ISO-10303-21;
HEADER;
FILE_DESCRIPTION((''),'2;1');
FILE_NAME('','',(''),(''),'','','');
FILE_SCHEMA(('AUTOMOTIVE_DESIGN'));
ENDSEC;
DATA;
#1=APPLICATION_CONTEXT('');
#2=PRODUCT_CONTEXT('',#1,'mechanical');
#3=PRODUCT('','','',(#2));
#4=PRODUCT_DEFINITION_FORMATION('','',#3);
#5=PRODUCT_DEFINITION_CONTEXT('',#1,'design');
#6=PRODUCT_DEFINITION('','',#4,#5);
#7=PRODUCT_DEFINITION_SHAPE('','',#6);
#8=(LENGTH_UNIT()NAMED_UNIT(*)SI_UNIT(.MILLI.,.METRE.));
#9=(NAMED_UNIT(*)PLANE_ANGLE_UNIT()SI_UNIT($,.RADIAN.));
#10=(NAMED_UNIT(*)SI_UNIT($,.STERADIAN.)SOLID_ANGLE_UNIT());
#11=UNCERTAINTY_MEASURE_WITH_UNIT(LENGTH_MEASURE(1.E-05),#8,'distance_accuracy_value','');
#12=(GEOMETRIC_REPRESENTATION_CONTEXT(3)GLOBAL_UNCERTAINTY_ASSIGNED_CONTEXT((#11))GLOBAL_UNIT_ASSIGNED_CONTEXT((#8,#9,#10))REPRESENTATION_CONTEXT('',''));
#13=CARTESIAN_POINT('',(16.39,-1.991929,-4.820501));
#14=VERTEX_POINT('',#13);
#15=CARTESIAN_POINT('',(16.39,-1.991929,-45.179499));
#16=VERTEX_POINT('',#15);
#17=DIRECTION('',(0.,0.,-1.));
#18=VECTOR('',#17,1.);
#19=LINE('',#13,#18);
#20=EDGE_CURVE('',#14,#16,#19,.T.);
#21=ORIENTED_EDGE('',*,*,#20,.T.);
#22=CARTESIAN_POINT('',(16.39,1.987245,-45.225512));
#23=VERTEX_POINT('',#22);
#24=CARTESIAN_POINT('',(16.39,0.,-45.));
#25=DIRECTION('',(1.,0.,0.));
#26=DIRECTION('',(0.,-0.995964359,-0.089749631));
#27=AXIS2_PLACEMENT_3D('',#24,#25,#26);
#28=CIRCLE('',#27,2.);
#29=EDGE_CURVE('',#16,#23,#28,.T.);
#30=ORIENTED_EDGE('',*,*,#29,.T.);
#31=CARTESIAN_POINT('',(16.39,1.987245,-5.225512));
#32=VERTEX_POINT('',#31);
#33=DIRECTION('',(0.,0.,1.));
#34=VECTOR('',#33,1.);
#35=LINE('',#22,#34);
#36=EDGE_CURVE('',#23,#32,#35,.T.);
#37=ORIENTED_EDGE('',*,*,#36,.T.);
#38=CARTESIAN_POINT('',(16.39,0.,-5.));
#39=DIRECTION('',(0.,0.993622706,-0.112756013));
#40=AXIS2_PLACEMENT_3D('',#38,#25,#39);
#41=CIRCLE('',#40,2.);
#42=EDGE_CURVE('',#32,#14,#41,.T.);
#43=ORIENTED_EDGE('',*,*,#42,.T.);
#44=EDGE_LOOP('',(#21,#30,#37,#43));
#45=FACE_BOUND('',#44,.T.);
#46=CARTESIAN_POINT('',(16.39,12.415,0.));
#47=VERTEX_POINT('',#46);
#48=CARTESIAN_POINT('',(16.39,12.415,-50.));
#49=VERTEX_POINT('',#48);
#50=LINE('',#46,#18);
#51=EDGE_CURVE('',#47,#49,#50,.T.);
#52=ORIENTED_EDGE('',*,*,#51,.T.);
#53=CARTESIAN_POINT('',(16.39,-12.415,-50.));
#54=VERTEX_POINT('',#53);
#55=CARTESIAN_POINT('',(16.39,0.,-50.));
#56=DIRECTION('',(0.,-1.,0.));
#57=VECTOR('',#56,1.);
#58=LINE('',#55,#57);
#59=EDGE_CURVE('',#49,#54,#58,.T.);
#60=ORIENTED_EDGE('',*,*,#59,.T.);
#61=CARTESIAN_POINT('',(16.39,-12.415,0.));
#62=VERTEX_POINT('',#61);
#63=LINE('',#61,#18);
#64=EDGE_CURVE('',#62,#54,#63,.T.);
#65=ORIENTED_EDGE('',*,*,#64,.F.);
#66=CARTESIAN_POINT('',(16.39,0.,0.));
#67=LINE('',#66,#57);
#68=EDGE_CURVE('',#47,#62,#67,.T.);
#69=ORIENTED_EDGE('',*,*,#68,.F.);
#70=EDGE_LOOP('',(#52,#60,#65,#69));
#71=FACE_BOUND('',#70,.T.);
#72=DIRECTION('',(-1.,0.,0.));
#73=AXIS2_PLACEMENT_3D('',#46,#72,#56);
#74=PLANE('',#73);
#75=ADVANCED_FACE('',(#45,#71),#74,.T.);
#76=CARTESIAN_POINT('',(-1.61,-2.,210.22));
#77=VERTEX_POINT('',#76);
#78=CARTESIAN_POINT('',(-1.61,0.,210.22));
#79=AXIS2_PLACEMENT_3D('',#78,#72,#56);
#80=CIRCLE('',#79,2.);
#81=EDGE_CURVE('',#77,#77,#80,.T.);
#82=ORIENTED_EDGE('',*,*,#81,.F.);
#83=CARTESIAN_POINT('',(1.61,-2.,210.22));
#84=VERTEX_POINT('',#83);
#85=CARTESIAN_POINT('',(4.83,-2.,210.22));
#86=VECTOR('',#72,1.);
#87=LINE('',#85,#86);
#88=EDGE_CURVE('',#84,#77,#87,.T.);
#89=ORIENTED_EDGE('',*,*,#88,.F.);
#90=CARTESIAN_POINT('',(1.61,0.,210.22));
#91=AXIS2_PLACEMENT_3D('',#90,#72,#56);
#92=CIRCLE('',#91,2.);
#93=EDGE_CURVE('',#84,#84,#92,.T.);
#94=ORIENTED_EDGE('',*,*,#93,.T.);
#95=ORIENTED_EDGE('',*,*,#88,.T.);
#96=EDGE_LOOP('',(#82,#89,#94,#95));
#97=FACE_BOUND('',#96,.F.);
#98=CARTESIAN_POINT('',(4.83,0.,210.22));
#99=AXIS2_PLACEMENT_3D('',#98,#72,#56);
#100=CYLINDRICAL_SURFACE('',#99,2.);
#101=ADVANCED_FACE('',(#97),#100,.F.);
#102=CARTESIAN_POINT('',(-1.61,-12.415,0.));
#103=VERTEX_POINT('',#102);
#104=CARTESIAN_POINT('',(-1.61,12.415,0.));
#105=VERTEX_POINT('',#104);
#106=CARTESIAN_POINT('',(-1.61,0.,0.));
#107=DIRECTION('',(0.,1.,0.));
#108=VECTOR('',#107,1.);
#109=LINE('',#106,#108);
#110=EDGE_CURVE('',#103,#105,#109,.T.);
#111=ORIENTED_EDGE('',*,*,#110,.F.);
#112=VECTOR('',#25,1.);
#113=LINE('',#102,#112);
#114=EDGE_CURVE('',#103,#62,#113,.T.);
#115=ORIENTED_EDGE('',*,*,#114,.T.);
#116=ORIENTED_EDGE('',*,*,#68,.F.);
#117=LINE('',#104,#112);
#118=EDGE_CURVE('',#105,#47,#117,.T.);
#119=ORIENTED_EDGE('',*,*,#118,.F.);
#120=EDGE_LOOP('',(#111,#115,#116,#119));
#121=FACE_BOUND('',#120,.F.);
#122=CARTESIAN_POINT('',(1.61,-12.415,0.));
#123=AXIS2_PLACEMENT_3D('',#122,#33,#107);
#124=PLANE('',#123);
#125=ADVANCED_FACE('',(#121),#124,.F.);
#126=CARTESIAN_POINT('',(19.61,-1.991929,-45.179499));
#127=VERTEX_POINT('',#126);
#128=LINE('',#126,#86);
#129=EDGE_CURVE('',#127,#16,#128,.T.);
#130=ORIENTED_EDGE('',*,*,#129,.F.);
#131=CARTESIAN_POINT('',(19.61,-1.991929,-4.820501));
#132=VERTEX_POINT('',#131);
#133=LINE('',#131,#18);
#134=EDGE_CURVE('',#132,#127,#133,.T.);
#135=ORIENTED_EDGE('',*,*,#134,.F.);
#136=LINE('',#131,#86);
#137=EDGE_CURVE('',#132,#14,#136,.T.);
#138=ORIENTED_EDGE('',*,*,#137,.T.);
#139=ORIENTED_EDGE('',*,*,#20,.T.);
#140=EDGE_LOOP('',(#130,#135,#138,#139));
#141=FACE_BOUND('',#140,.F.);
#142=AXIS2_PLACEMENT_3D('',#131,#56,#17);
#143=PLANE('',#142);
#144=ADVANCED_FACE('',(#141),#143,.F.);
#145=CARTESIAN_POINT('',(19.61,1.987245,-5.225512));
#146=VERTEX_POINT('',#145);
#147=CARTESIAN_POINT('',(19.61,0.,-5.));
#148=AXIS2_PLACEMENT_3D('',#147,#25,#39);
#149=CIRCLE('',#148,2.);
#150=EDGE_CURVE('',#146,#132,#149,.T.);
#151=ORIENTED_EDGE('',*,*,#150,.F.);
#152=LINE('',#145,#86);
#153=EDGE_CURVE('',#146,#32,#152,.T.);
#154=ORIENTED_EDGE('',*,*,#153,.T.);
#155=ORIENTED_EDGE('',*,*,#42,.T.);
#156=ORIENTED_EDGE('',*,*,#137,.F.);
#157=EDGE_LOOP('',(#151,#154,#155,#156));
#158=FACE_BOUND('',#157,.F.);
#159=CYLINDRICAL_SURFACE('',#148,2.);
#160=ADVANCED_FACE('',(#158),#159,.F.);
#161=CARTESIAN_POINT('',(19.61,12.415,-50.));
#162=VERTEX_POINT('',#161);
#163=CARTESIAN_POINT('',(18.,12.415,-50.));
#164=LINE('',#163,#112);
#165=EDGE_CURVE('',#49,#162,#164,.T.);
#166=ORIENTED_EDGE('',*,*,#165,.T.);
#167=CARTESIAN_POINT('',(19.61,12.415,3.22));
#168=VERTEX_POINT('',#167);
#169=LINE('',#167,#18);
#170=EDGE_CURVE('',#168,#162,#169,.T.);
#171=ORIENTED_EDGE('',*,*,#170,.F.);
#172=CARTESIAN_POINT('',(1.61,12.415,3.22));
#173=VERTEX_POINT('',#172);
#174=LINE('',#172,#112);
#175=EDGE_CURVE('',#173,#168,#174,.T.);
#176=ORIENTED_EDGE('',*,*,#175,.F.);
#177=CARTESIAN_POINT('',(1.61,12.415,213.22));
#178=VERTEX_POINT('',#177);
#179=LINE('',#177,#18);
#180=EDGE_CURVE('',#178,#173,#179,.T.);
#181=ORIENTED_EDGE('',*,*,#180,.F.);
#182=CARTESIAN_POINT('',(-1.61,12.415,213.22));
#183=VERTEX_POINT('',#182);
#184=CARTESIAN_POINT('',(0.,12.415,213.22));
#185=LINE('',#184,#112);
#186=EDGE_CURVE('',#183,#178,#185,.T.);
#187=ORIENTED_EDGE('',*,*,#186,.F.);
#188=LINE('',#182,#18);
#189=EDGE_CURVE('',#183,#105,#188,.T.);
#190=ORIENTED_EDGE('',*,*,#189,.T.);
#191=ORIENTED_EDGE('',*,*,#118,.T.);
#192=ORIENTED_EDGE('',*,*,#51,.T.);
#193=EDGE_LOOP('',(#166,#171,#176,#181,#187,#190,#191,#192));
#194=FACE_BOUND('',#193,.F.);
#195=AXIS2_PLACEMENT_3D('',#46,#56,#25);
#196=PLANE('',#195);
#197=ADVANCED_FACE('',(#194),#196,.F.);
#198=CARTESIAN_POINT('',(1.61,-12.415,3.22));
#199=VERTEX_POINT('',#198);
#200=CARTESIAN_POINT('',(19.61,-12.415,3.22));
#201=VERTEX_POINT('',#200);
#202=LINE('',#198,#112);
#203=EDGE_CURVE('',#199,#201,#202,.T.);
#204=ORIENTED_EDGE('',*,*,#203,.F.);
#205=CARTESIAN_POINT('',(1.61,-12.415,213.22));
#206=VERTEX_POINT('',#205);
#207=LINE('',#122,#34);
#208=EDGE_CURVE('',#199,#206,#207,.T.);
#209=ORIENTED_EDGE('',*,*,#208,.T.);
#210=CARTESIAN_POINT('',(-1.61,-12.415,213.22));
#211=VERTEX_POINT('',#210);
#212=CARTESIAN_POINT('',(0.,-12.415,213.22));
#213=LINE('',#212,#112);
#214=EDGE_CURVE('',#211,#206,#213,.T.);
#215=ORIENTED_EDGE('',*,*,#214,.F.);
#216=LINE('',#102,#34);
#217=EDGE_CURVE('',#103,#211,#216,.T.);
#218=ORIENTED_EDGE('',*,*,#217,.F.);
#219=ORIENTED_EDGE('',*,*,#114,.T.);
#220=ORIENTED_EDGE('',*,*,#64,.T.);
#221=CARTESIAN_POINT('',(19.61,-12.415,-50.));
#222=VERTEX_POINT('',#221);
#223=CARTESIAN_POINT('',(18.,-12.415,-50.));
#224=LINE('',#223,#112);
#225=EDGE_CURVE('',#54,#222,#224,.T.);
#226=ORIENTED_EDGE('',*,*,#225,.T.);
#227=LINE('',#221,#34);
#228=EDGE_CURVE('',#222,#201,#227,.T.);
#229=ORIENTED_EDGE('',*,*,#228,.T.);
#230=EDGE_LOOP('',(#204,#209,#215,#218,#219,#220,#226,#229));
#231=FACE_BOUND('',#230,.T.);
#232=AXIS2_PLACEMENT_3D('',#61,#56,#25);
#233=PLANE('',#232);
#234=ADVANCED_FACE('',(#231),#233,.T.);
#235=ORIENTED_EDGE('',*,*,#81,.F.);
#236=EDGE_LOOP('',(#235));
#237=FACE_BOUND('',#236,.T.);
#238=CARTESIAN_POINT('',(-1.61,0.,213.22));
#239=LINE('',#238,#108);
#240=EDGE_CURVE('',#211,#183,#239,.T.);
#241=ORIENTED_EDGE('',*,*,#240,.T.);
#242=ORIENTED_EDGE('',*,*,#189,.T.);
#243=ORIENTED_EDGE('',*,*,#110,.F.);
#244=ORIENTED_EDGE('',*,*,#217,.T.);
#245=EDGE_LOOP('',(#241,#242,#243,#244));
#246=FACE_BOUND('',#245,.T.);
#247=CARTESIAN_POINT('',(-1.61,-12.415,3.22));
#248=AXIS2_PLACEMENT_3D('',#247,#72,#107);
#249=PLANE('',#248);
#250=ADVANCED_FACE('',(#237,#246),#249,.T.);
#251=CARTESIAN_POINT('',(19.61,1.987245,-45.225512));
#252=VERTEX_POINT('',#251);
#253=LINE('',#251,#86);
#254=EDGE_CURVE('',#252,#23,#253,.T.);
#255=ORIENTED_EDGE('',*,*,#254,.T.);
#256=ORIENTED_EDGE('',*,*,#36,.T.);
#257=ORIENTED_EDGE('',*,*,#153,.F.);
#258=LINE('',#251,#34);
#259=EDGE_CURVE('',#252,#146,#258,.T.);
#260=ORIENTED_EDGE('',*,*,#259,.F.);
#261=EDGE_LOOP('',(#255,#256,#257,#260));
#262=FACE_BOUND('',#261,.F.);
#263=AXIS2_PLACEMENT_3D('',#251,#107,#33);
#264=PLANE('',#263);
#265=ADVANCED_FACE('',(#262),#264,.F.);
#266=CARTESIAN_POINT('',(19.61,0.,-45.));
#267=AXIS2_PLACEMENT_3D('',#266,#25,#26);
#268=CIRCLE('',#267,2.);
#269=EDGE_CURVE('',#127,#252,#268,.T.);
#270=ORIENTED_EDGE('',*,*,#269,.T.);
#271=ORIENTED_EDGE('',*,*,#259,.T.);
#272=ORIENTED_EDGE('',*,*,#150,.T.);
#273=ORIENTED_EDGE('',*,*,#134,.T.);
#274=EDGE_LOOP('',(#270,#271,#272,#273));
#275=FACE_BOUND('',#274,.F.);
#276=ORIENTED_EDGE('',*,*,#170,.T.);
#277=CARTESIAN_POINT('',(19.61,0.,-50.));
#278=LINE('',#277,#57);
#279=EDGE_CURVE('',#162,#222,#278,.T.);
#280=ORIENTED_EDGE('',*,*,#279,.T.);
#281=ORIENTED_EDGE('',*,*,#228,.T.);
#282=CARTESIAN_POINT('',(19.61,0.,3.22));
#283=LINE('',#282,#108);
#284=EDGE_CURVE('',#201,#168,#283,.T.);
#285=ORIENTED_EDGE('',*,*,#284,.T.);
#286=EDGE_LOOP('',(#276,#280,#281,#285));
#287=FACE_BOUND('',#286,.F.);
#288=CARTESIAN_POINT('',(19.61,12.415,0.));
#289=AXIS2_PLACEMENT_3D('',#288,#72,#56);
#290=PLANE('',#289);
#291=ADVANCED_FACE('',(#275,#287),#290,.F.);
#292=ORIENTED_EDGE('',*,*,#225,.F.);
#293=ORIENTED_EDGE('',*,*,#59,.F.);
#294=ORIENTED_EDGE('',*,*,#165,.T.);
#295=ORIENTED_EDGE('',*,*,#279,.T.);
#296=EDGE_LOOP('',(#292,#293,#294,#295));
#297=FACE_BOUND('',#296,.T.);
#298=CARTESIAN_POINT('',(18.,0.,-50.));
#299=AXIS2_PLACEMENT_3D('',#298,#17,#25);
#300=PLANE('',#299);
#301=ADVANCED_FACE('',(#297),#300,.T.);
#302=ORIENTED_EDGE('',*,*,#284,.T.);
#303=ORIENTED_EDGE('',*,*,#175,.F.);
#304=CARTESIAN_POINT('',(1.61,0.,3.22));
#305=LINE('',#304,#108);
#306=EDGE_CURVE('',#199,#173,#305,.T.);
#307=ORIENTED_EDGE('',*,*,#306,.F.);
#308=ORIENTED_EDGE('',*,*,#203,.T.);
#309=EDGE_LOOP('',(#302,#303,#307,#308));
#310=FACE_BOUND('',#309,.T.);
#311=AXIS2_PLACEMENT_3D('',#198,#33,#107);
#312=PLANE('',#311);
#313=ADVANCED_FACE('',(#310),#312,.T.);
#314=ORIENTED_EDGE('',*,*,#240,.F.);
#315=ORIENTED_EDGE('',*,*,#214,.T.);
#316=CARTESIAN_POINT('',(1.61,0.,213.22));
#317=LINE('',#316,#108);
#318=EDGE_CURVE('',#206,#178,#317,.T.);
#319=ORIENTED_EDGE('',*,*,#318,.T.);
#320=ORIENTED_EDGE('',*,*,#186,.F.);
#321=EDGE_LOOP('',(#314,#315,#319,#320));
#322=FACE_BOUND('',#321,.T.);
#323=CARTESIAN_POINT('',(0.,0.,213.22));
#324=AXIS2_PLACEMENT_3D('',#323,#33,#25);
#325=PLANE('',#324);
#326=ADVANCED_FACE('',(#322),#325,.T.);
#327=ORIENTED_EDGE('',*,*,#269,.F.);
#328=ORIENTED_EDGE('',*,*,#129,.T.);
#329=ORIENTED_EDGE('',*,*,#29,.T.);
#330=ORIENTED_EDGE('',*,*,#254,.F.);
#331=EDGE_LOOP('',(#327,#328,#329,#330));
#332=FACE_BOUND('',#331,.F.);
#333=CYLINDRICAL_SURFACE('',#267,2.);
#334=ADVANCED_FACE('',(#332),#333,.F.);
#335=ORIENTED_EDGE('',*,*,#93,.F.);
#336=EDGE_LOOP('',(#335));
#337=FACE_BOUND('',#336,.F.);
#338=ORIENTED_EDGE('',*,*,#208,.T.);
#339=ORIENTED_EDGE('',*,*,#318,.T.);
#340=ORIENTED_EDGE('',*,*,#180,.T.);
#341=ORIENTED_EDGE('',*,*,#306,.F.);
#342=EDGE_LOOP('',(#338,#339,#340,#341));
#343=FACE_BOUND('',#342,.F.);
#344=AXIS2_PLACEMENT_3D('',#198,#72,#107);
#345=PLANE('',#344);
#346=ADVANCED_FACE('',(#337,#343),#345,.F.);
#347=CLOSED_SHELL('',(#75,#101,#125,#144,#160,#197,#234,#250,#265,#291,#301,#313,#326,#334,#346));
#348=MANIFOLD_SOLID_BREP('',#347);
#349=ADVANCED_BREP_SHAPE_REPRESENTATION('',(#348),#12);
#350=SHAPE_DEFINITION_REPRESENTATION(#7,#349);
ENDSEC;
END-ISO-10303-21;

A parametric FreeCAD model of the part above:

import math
import FreeCAD as App
import Part
import Sketcher

V = App.Vector

doc = App.newDocument("Part")
body = doc.addObject("PartDesign::Body", "Body")

# Sketch on XY plane
sketch1 = doc.addObject("Sketcher::SketchObject", "Sketch")
body.addObject(sketch1)
sketch1.AttachmentSupport = (doc.XY_Plane, [""])
sketch1.MapMode = "FlatFace"
sketch1.addGeometry(Part.LineSegment(V(-1.61, 12.415, 0), V(-1.61, -12.415, 0)), False)
sketch1.addGeometry(Part.LineSegment(V(-1.61, -12.415, 0), V(1.61, -12.415, 0)), False)
sketch1.addGeometry(Part.LineSegment(V(1.61, -12.415, 0), V(1.61, 12.415, 0)), False)
sketch1.addGeometry(Part.LineSegment(V(1.61, 12.415, 0), V(-1.61, 12.415, 0)), False)
sketch1.addConstraint(Sketcher.Constraint("Coincident", 0, 2, 1, 1))
sketch1.addConstraint(Sketcher.Constraint("Coincident", 1, 2, 2, 1))
sketch1.addConstraint(Sketcher.Constraint("Coincident", 2, 2, 3, 1))
sketch1.addConstraint(Sketcher.Constraint("Coincident", 3, 2, 0, 1))
sketch1.addConstraint(Sketcher.Constraint("Vertical", 0))
sketch1.addConstraint(Sketcher.Constraint("Horizontal", 1))
sketch1.addConstraint(Sketcher.Constraint("Vertical", 2))
sketch1.addConstraint(Sketcher.Constraint("Horizontal", 3))
sketch1.addConstraint(Sketcher.Constraint("Symmetric", 0, 2, 2, 2, -1, 1))
sketch1.addConstraint(Sketcher.Constraint("DistanceX", 1, 1, 1, 2, 3.22))
sketch1.addConstraint(Sketcher.Constraint("DistanceY", 0, 2, 0, 1, 24.83))
pad1 = doc.addObject("PartDesign::Pad", "Pad")
body.addObject(pad1)
pad1.Profile = sketch1
pad1.Length = 3.22

# Sketch on XY plane
sketch2 = doc.addObject("Sketcher::SketchObject", "Sketch001")
body.addObject(sketch2)
sketch2.AttachmentSupport = (doc.XY_Plane, [""])
sketch2.MapMode = "FlatFace"
sketch2.AttachmentOffset = App.Placement(V(0, 0, 3.22), App.Rotation())
sketch2.addGeometry(Part.LineSegment(V(-1.61, 12.415, 0), V(-1.61, -12.415, 0)), False)
sketch2.addGeometry(Part.LineSegment(V(-1.61, -12.415, 0), V(1.61, -12.415, 0)), False)
sketch2.addGeometry(Part.LineSegment(V(1.61, -12.415, 0), V(1.61, 12.415, 0)), False)
sketch2.addGeometry(Part.LineSegment(V(1.61, 12.415, 0), V(-1.61, 12.415, 0)), False)
sketch2.addConstraint(Sketcher.Constraint("Coincident", 0, 2, 1, 1))
sketch2.addConstraint(Sketcher.Constraint("Coincident", 1, 2, 2, 1))
sketch2.addConstraint(Sketcher.Constraint("Coincident", 2, 2, 3, 1))
sketch2.addConstraint(Sketcher.Constraint("Coincident", 3, 2, 0, 1))
sketch2.addConstraint(Sketcher.Constraint("Vertical", 0))
sketch2.addConstraint(Sketcher.Constraint("Horizontal", 1))
sketch2.addConstraint(Sketcher.Constraint("Vertical", 2))
sketch2.addConstraint(Sketcher.Constraint("Horizontal", 3))
sketch2.addConstraint(Sketcher.Constraint("Symmetric", 0, 2, 2, 2, -1, 1))
sketch2.addConstraint(Sketcher.Constraint("DistanceX", 1, 1, 1, 2, 3.22))
sketch2.addConstraint(Sketcher.Constraint("DistanceY", 0, 2, 0, 1, 24.83))
pad2 = doc.addObject("PartDesign::Pad", "Pad001")
body.addObject(pad2)
pad2.Profile = sketch2
pad2.Length = 210

# Sketch on YZ plane
sketch3 = doc.addObject("Sketcher::SketchObject", "Sketch002")
body.addObject(sketch3)
sketch3.AttachmentSupport = (doc.YZ_Plane, [""])
sketch3.MapMode = "FlatFace"
sketch3.AttachmentOffset = App.Placement(V(0, 0, 1.61), App.Rotation())
sketch3.addGeometry(Part.Circle(V(0, 210.22, 0), V(0, 0, 1), 2), False)
sketch3.addConstraint(Sketcher.Constraint("PointOnObject", 0, 3, -2))
sketch3.addConstraint(Sketcher.Constraint("Diameter", 0, 4.0))
sketch3.addConstraint(Sketcher.Constraint("DistanceY", -1, 1, 0, 3, 210.22))
doc.recompute()
hole = doc.addObject("PartDesign::Hole", "Hole")
body.addObject(hole)
hole.Profile = sketch3
hole.ThreadType = "None"
hole.Diameter = 4
hole.DepthType = "Dimension"
hole.Depth = 3.22
hole.DrillPoint = "Flat"

# Sketch on YZ plane
sketch4 = doc.addObject("Sketcher::SketchObject", "Sketch003")
body.addObject(sketch4)
sketch4.AttachmentSupport = (doc.YZ_Plane, [""])
sketch4.MapMode = "FlatFace"
sketch4.AttachmentOffset = App.Placement(V(0, 0, 1.61), App.Rotation())
sketch4.addGeometry(Part.LineSegment(V(-12.415, 3.22, 0), V(-12.415, 0, 0)), False)
sketch4.addGeometry(Part.LineSegment(V(-12.415, 0, 0), V(12.415, 0, 0)), False)
sketch4.addGeometry(Part.LineSegment(V(12.415, 0, 0), V(12.415, 3.22, 0)), False)
sketch4.addGeometry(Part.LineSegment(V(12.415, 3.22, 0), V(-12.415, 3.22, 0)), False)
sketch4.addConstraint(Sketcher.Constraint("Coincident", 0, 2, 1, 1))
sketch4.addConstraint(Sketcher.Constraint("Coincident", 1, 2, 2, 1))
sketch4.addConstraint(Sketcher.Constraint("Coincident", 2, 2, 3, 1))
sketch4.addConstraint(Sketcher.Constraint("Coincident", 3, 2, 0, 1))
sketch4.addConstraint(Sketcher.Constraint("Vertical", 0))
sketch4.addConstraint(Sketcher.Constraint("Horizontal", 1))
sketch4.addConstraint(Sketcher.Constraint("Vertical", 2))
sketch4.addConstraint(Sketcher.Constraint("Horizontal", 3))
sketch4.addConstraint(Sketcher.Constraint("Symmetric", 0, 2, 1, 2, -1, 1))
sketch4.addConstraint(Sketcher.Constraint("DistanceX", 1, 1, 1, 2, 24.83))
sketch4.addConstraint(Sketcher.Constraint("DistanceY", 0, 2, 0, 1, 3.22))
pad3 = doc.addObject("PartDesign::Pad", "Pad002")
body.addObject(pad3)
pad3.Profile = sketch4
pad3.Length = 18

# Sketch on XY plane
sketch5 = doc.addObject("Sketcher::SketchObject", "Sketch004")
body.addObject(sketch5)
sketch5.AttachmentSupport = (doc.XY_Plane, [""])
sketch5.MapMode = "FlatFace"
sketch5.addGeometry(Part.LineSegment(V(16.39, -12.415, 0), V(16.39, 12.415, 0)), False)
sketch5.addGeometry(Part.LineSegment(V(16.39, 12.415, 0), V(19.61, 12.415, 0)), False)
sketch5.addGeometry(Part.LineSegment(V(19.61, 12.415, 0), V(19.61, -12.415, 0)), False)
sketch5.addGeometry(Part.LineSegment(V(19.61, -12.415, 0), V(16.39, -12.415, 0)), False)
sketch5.addConstraint(Sketcher.Constraint("Coincident", 0, 2, 1, 1))
sketch5.addConstraint(Sketcher.Constraint("Coincident", 1, 2, 2, 1))
sketch5.addConstraint(Sketcher.Constraint("Coincident", 2, 2, 3, 1))
sketch5.addConstraint(Sketcher.Constraint("Coincident", 3, 2, 0, 1))
sketch5.addConstraint(Sketcher.Constraint("Vertical", 0))
sketch5.addConstraint(Sketcher.Constraint("Horizontal", 1))
sketch5.addConstraint(Sketcher.Constraint("Vertical", 2))
sketch5.addConstraint(Sketcher.Constraint("Horizontal", 3))
sketch5.addConstraint(Sketcher.Constraint("DistanceX", 1, 1, 1, 2, 3.22))
sketch5.addConstraint(Sketcher.Constraint("DistanceY", 0, 1, 0, 2, 24.83))
sketch5.addConstraint(Sketcher.Constraint("DistanceX", -1, 1, 0, 2, 16.39))
sketch5.addConstraint(Sketcher.Constraint("DistanceY", -1, 1, 0, 2, 12.415))
pad4 = doc.addObject("PartDesign::Pad", "Pad003")
body.addObject(pad4)
pad4.Profile = sketch5
pad4.Length = 50
pad4.Reversed = True

# Sketch on YZ plane
sketch6 = doc.addObject("Sketcher::SketchObject", "Sketch005")
body.addObject(sketch6)
sketch6.AttachmentSupport = (doc.YZ_Plane, [""])
sketch6.MapMode = "FlatFace"
sketch6.AttachmentOffset = App.Placement(V(0, 0, 19.61), App.Rotation())
sketch6.addGeometry(Part.ArcOfCircle(Part.Circle(V(0, -5, 0), V(0, 0, 1), 2), math.radians(-6.474212), math.radians(174.850804)), False)
sketch6.addGeometry(Part.LineSegment(V(-1.991929, -4.820501, 0), V(-1.991929, -45.179499, 0)), False)
sketch6.addGeometry(Part.ArcOfCircle(Part.Circle(V(0, -45, 0), V(0, 0, 1), 2), math.radians(-174.850796), math.radians(-6.474219)), False)
sketch6.addGeometry(Part.LineSegment(V(1.987245, -45.225512, 0), V(1.987245, -5.225512, 0)), False)
sketch6.addConstraint(Sketcher.Constraint("Coincident", 0, 2, 1, 1))
sketch6.addConstraint(Sketcher.Constraint("Coincident", 1, 2, 2, 1))
sketch6.addConstraint(Sketcher.Constraint("Coincident", 2, 2, 3, 1))
sketch6.addConstraint(Sketcher.Constraint("Coincident", 3, 2, 0, 1))
sketch6.addConstraint(Sketcher.Constraint("Vertical", 1))
sketch6.addConstraint(Sketcher.Constraint("Vertical", 3))
sketch6.addConstraint(Sketcher.Constraint("Equal", 0, 2))
sketch6.addConstraint(Sketcher.Constraint("PointOnObject", 0, 3, -2))
sketch6.addConstraint(Sketcher.Constraint("PointOnObject", 2, 3, -2))
sketch6.addConstraint(Sketcher.Constraint("Radius", 0, 2.0))
sketch6.addConstraint(Sketcher.Constraint("DistanceY", 3, 1, 3, 2, 40.0))
sketch6.addConstraint(Sketcher.Constraint("DistanceY", 0, 3, -1, 1, 5.0))
sketch6.addConstraint(Sketcher.Constraint("DistanceY", 1, 2, 0, 2, 40.358998))
sketch6.addConstraint(Sketcher.Constraint("DistanceY", 2, 2, 0, 2, 40.405011))
pocket1 = doc.addObject("PartDesign::Pocket", "Pocket")
body.addObject(pocket1)
pocket1.Profile = sketch6
pocket1.Length = 3.22

doc.recompute()
